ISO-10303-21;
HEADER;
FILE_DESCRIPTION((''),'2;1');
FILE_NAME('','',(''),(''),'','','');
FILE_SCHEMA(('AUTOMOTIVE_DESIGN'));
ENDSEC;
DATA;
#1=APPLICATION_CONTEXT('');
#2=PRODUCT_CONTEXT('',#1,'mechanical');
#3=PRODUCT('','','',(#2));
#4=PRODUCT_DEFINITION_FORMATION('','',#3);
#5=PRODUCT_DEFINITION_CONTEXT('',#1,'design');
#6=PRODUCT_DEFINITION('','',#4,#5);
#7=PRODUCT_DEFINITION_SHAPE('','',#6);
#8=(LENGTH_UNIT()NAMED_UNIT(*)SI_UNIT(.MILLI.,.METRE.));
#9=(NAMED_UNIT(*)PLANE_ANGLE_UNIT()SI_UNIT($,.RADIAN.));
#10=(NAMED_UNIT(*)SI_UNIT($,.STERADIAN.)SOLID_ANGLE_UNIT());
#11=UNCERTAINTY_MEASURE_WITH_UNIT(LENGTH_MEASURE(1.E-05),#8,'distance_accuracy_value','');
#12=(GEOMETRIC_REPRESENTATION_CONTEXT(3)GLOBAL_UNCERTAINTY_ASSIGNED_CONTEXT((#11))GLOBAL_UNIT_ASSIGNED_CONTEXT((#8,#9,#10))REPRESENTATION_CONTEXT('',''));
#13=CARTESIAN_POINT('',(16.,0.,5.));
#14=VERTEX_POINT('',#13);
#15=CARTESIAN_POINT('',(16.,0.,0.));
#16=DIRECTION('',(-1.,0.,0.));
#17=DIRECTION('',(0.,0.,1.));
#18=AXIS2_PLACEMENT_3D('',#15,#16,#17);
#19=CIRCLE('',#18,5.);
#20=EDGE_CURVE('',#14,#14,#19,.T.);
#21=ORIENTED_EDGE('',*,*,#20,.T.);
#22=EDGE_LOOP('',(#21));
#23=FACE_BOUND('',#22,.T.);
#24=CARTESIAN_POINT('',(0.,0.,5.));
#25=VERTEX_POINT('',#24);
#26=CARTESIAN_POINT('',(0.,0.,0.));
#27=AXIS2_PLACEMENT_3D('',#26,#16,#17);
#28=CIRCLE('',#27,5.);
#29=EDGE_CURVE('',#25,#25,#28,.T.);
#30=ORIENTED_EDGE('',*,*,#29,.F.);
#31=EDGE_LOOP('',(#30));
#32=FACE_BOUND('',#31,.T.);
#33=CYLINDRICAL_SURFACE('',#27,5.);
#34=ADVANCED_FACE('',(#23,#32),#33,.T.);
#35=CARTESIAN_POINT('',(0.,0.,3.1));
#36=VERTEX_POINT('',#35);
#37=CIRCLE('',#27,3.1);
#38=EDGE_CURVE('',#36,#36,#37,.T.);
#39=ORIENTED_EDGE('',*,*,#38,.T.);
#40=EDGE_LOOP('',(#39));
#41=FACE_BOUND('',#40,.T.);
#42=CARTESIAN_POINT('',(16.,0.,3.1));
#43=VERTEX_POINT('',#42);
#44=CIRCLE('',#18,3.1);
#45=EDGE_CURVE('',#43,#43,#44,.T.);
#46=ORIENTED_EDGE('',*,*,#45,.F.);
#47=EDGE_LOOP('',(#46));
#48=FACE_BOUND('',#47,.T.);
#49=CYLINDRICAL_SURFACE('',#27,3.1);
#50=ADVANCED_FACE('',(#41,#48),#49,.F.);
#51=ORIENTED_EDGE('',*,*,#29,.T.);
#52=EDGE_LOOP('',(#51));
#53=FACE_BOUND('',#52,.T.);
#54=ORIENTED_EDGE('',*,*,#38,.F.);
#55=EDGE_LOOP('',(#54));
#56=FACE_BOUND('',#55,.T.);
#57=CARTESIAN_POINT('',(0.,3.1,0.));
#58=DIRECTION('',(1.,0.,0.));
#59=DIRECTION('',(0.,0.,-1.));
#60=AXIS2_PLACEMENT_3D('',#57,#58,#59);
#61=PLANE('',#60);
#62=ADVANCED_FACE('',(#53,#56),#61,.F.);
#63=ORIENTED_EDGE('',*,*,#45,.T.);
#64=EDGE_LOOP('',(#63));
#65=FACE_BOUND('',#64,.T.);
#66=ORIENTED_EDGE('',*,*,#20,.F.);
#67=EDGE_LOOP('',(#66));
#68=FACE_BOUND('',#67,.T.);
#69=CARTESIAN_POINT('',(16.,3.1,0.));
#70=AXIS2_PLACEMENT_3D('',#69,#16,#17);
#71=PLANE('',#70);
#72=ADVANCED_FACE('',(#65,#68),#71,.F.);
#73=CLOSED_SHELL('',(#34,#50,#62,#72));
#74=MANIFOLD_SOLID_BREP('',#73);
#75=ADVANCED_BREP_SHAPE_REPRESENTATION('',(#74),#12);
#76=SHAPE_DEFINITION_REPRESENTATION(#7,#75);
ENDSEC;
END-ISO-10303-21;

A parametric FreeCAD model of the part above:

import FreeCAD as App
import Part
import Sketcher
Q = App.Units.Quantity

doc = App.newDocument("Part")
params = doc.addObject("Spreadsheet::Sheet", "Params")
for row, (alias, value) in enumerate([
    ("sketch1_width", "16 mm"),
    ("sketch1_height", "1.9 mm"),
    ("revolution_angle", "360 deg"),
], start=1):
    params.set(f"A{row}", alias)
    params.set(f"B{row}", "=" + value)
    params.setAlias(f"B{row}", alias)

body = doc.addObject("PartDesign::Body", "Body")

# Sketch on XY plane
sketch1 = body.newObject("Sketcher::SketchObject", "Sketch")
sketch1.AttachmentSupport = (doc.getObject("XY_Plane"), [""])
sketch1.MapMode = "FlatFace"
sketch1.addGeometry([
    Part.LineSegment(App.Vector(0, 5, 0), App.Vector(0, 3.1, 0)),
    Part.LineSegment(App.Vector(0, 3.1, 0), App.Vector(16, 3.1, 0)),
    Part.LineSegment(App.Vector(16, 3.1, 0), App.Vector(16, 5, 0)),
    Part.LineSegment(App.Vector(16, 5, 0), App.Vector(0, 5, 0)),
], False)
sketch1.addConstraint([
    Sketcher.Constraint("Coincident", 0, 2, 1, 1),
    Sketcher.Constraint("Coincident", 1, 2, 2, 1),
    Sketcher.Constraint("Coincident", 2, 2, 3, 1),
    Sketcher.Constraint("Coincident", 3, 2, 0, 1),
    Sketcher.Constraint("Vertical", 0),
    Sketcher.Constraint("Horizontal", 1),
    Sketcher.Constraint("Vertical", 2),
    Sketcher.Constraint("Horizontal", 3),
    Sketcher.Constraint("PointOnObject", 0, 2, -2),
    Sketcher.Constraint("DistanceX", 1, 1, 1, 2, Q("16 mm")),
    Sketcher.Constraint("DistanceY", 0, 2, 0, 1, Q("1.9 mm")),
    Sketcher.Constraint("DistanceY", -1, 1, 2, 2, Q("5 mm")),
])
sketch1.setExpression("Constraints[9]", "Params.sketch1_width")
sketch1.setExpression("Constraints[10]", "Params.sketch1_height")
revolution = body.newObject("PartDesign::Revolution", "Revolution")
revolution.Profile = sketch1
revolution.ReferenceAxis = (sketch1, ["H_Axis"])
revolution.setExpression("Angle", "Params.revolution_angle")

doc.recompute()
